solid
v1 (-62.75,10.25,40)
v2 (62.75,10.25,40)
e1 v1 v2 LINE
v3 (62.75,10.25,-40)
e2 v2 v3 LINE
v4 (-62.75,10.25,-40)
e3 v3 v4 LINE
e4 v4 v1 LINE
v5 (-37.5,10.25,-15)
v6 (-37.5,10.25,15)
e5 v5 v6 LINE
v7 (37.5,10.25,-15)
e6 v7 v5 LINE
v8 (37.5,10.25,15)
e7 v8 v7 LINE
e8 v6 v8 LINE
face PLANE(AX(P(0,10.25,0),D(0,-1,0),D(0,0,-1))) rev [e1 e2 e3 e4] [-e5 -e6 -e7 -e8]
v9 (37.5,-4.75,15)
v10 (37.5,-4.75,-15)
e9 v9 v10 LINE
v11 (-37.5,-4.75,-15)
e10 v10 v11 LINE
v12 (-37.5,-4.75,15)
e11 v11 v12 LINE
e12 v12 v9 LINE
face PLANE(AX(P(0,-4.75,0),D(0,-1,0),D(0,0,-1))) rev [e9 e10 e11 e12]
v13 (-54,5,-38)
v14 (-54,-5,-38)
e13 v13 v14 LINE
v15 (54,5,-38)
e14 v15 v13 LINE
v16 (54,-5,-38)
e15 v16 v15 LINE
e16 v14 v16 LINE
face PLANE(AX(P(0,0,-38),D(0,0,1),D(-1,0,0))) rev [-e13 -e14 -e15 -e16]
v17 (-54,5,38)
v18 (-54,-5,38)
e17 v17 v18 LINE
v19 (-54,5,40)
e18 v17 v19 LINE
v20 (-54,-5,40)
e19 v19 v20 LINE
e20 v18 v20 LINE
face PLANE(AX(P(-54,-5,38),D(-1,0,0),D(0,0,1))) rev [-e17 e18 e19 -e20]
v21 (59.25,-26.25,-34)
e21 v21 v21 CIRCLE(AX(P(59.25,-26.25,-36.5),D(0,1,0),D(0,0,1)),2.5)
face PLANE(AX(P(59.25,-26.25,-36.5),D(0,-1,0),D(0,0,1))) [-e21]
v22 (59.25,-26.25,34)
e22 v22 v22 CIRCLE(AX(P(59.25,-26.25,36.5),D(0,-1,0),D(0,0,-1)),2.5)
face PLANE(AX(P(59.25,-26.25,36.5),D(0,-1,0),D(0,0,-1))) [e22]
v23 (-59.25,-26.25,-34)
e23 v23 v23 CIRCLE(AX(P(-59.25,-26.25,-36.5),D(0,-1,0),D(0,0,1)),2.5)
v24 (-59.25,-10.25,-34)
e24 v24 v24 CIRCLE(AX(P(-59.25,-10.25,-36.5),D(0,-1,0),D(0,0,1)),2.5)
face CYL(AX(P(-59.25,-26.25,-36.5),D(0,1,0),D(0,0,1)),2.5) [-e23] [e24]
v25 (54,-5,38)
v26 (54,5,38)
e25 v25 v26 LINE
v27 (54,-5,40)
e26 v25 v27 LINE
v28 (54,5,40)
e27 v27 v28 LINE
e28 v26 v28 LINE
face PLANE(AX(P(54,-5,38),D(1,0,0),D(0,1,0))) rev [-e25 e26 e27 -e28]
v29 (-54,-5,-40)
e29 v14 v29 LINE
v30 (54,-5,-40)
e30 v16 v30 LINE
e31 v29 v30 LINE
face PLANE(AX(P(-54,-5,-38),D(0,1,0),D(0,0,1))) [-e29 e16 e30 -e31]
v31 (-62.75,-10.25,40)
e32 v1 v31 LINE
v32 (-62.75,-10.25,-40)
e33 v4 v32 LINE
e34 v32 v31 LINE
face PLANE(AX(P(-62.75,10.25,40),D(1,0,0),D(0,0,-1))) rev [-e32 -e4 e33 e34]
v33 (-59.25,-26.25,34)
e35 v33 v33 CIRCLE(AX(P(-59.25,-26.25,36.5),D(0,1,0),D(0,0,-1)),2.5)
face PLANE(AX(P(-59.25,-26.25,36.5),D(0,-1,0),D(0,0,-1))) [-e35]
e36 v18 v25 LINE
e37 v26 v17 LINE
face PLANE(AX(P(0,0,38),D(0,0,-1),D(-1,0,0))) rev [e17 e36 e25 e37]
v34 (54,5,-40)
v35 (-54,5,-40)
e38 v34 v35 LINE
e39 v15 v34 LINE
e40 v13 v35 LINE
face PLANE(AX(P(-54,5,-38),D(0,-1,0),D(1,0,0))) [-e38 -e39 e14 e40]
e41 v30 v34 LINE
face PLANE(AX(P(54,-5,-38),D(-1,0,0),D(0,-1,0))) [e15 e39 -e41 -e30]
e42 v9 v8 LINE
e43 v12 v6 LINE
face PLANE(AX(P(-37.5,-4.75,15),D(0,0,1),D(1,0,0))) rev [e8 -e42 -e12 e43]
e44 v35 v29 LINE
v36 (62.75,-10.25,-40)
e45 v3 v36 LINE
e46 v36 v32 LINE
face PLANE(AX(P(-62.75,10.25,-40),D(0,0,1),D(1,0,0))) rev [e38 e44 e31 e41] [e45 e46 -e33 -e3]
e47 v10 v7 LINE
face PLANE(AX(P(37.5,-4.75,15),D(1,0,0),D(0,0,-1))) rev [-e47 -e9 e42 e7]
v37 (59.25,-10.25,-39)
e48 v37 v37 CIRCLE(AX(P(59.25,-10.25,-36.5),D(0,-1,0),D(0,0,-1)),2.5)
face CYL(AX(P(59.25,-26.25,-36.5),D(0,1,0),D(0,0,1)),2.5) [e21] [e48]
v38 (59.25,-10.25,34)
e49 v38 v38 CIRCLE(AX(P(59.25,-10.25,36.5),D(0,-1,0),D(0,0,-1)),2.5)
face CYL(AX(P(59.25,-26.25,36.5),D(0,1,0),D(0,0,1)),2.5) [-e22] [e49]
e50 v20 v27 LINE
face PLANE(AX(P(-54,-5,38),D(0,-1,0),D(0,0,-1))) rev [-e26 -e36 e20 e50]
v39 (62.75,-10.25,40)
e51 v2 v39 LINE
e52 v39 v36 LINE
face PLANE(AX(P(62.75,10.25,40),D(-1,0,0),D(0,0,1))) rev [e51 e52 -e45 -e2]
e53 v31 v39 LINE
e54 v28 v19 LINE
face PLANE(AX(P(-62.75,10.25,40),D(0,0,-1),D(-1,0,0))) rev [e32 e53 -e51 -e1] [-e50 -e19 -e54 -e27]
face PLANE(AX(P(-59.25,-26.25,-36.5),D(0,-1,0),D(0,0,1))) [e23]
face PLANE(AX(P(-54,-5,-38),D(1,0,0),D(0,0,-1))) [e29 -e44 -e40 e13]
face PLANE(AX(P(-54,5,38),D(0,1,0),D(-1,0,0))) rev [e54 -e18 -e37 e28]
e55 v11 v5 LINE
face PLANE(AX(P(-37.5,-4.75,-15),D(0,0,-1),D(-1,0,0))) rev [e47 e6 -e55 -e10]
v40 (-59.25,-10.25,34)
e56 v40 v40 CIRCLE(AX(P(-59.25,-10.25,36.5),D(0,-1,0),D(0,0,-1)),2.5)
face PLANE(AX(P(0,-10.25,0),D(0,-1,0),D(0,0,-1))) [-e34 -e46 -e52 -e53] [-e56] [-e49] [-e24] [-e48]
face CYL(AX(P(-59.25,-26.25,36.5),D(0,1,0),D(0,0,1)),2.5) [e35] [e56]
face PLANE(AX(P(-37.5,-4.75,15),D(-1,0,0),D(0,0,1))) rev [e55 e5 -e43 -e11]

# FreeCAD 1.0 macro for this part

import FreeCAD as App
import Part
import Sketcher

V = App.Vector
Q = App.Units.Quantity


def add_polygon(sketch, points):
    """Adds a closed chain of lines whose ends are joined by coincident constraints."""
    first, n = sketch.GeometryCount, len(points)
    for a, b in zip(points, points[1:] + points[:1]):
        sketch.addGeometry(Part.LineSegment(App.Vector(*a, 0), App.Vector(*b, 0)), False)
    for i in range(n):
        sketch.addConstraint(Sketcher.Constraint("Coincident", first + i, 2, first + (i + 1) % n, 1))

doc = App.newDocument("Part")
body = doc.addObject("PartDesign::Body", "Body")

# Sketch on XZ plane
sketch1 = body.newObject("Sketcher::SketchObject", "Sketch")
sketch1.AttachmentSupport = (doc.getObject("XZ_Plane"), [""])
sketch1.MapMode = "FlatFace"
add_polygon(sketch1, [(-63, -40), (-63, 40), (63, 40), (63, -40)])  # lines 0-3
sketch1.addConstraint(Sketcher.Constraint("Vertical", 0))
sketch1.addConstraint(Sketcher.Constraint("Horizontal", 1))
sketch1.addConstraint(Sketcher.Constraint("Vertical", 2))
sketch1.addConstraint(Sketcher.Constraint("Horizontal", 3))
sketch1.addConstraint(Sketcher.Constraint("Symmetric", 0, 2, 2, 2, -1, 1))
sketch1.addConstraint(Sketcher.Constraint("DistanceY", 0, 1, 0, 2, Q("80 mm")))
sketch1.addConstraint(Sketcher.Constraint("DistanceX", 1, 1, 1, 2, Q("125.5 mm")))
pad1 = body.newObject("PartDesign::Pad", "Pad")
pad1.Profile = sketch1
pad1.Length = 20.5
pad1.Midplane = True

# Sketch on XZ plane
sketch2 = body.newObject("Sketcher::SketchObject", "Sketch001")
sketch2.AttachmentSupport = (doc.getObject("XZ_Plane"), [""])
sketch2.MapMode = "FlatFace"
sketch2.AttachmentOffset = App.Placement(V(0, 0, -10.25), App.Rotation())
add_polygon(sketch2, [(-38, -15), (-38, 15), (38, 15), (38, -15)])  # lines 0-3
sketch2.addConstraint(Sketcher.Constraint("Vertical", 0))
sketch2.addConstraint(Sketcher.Constraint("Horizontal", 1))
sketch2.addConstraint(Sketcher.Constraint("Vertical", 2))
sketch2.addConstraint(Sketcher.Constraint("Horizontal", 3))
sketch2.addConstraint(Sketcher.Constraint("Symmetric", 0, 2, 2, 2, -1, 1))
sketch2.addConstraint(Sketcher.Constraint("DistanceX", 1, 1, 1, 2, Q("75 mm")))
sketch2.addConstraint(Sketcher.Constraint("DistanceY", 0, 1, 0, 2, Q("30 mm")))
pocket1 = body.newObject("PartDesign::Pocket", "Pocket")
pocket1.Profile = sketch2
pocket1.Length = 15
pocket1.Reversed = True

# Sketch on XZ plane
sketch3 = body.newObject("Sketcher::SketchObject", "Sketch002")
sketch3.AttachmentSupport = (doc.getObject("XZ_Plane"), [""])
sketch3.MapMode = "FlatFace"
sketch3.AttachmentOffset = App.Placement(V(0, 0, 10.25), App.Rotation())
sketch3.addGeometry(Part.Circle(V(59.2, 36.5, 0), V(0, 0, 1), 2.5), False)
sketch3.addConstraint(Sketcher.Constraint("Diameter", 0, Q("5 mm")))
sketch3.addConstraint(Sketcher.Constraint("DistanceY", -1, 1, 0, 3, Q("36.5 mm")))
sketch3.addConstraint(Sketcher.Constraint("DistanceX", -1, 1, 0, 3, Q("59.25 mm")))
pad2 = body.newObject("PartDesign::Pad", "Pad001")
pad2.Profile = sketch3
pad2.Length = 16
doc.recompute()

mirrored = body.newObject("PartDesign::Mirrored", "Mirrored")
mirrored.Originals = [pad2]
mirrored.MirrorPlane = (doc.getObject("YZ_Plane"), [""])
body.Tip = mirrored
doc.recompute()

mirrored2 = body.newObject("PartDesign::Mirrored", "Mirrored001")
mirrored2.Originals = [pad2]
mirrored2.MirrorPlane = (doc.getObject("XY_Plane"), [""])
body.Tip = mirrored2

# Sketch on XZ plane
sketch4 = body.newObject("Sketcher::SketchObject", "Sketch003")
sketch4.AttachmentSupport = (doc.getObject("XZ_Plane"), [""])
sketch4.MapMode = "FlatFace"
sketch4.AttachmentOffset = App.Placement(V(0, 0, 10.25), App.Rotation())
sketch4.addGeometry(Part.Circle(V(-59.2, -36.5, 0), V(0, 0, 1), 2.5), False)
sketch4.addConstraint(Sketcher.Constraint("Diameter", 0, Q("5 mm")))
sketch4.addConstraint(Sketcher.Constraint("DistanceY", 0, 3, -1, 1, Q("36.5 mm")))
sketch4.addConstraint(Sketcher.Constraint("DistanceX", 0, 3, -1, 1, Q("59.25 mm")))
pad3 = body.newObject("PartDesign::Pad", "Pad002")
pad3.Profile = sketch4
pad3.Length = 16

# Sketch on XY plane
sketch5 = body.newObject("Sketcher::SketchObject", "Sketch004")
sketch5.AttachmentSupport = (doc.getObject("XY_Plane"), [""])
sketch5.MapMode = "FlatFace"
sketch5.AttachmentOffset = App.Placement(V(0, 0, 40), App.Rotation())
add_polygon(sketch5, [(-54, 5), (-54, -5), (54, -5), (54, 5)])  # lines 0-3
sketch5.addConstraint(Sketcher.Constraint("Vertical", 0))
sketch5.addConstraint(Sketcher.Constraint("Horizontal", 1))
sketch5.addConstraint(Sketcher.Constraint("Vertical", 2))
sketch5.addConstraint(Sketcher.Constraint("Horizontal", 3))
sketch5.addConstraint(Sketcher.Constraint("Symmetric", 0, 2, 2, 2, -1, 1))
sketch5.addConstraint(Sketcher.Constraint("DistanceX", 1, 1, 1, 2, Q("108 mm")))
sketch5.addConstraint(Sketcher.Constraint("DistanceY", 0, 2, 0, 1, Q("10 mm")))
pocket2 = body.newObject("PartDesign::Pocket", "Pocket001")
pocket2.Profile = sketch5
pocket2.Length = 2
doc.recompute()

mirrored3 = body.newObject("PartDesign::Mirrored", "Mirrored002")
mirrored3.Originals = [pocket2]
mirrored3.MirrorPlane = (doc.getObject("XY_Plane"), [""])
body.Tip = mirrored3

doc.recompute()
